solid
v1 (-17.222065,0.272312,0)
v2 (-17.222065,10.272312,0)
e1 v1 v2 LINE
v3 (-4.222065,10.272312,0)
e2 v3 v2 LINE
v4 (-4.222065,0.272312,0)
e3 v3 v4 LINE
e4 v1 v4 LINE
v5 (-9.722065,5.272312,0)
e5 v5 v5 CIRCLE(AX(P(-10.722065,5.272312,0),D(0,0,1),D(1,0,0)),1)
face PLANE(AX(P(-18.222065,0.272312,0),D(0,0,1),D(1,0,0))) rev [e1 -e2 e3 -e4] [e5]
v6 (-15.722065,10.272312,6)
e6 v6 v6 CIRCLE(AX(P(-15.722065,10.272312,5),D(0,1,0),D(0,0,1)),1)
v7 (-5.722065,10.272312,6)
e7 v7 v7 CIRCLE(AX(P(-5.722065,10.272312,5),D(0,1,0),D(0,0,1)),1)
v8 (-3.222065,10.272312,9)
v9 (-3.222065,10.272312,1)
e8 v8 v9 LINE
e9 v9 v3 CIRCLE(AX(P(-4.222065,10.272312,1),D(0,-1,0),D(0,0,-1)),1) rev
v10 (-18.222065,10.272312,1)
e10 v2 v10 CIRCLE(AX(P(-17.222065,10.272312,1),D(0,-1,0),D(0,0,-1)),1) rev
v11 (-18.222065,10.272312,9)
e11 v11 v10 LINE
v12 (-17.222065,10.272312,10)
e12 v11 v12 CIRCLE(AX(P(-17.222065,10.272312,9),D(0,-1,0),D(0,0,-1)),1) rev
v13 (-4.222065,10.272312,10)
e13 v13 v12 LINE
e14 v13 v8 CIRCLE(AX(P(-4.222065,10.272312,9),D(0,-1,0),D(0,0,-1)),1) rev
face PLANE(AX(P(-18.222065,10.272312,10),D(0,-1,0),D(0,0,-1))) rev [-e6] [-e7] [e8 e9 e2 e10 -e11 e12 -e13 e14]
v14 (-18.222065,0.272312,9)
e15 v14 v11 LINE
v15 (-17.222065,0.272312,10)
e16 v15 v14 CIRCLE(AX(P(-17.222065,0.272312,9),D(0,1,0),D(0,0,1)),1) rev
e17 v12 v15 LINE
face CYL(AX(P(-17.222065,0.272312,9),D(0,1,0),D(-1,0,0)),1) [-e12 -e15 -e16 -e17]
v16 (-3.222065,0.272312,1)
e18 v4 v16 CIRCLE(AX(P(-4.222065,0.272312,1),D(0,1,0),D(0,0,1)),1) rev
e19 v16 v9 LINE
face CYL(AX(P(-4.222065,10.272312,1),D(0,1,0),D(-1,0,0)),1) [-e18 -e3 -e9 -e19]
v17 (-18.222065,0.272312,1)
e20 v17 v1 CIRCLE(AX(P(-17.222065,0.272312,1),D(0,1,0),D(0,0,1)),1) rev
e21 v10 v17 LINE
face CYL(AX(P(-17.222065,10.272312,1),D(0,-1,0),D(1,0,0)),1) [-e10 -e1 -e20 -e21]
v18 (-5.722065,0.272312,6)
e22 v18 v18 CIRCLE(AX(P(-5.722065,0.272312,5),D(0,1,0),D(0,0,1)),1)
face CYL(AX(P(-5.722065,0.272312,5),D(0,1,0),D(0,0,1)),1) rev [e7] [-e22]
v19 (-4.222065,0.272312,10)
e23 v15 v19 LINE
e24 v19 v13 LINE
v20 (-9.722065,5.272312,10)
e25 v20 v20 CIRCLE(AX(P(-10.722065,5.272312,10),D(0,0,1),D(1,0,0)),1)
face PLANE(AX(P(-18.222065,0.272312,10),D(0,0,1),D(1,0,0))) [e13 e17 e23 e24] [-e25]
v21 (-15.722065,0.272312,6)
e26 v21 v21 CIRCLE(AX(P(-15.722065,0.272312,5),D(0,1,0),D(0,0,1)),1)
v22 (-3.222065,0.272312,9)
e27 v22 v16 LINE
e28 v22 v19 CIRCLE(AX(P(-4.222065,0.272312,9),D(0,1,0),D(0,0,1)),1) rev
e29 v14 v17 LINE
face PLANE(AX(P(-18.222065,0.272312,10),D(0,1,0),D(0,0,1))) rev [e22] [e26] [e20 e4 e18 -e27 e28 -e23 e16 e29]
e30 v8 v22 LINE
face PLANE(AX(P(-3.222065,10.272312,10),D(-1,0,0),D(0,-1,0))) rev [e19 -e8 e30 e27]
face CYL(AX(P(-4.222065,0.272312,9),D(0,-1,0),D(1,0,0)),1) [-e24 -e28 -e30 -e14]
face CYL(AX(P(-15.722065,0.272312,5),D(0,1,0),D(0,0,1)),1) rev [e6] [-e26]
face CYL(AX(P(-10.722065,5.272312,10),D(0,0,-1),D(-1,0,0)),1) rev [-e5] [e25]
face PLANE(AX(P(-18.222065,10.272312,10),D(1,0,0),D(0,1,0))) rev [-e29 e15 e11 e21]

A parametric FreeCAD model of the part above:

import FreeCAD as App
import Part
import Sketcher
from FreeCAD import Vector


def edges_at(feature, points):
    """Names of the edges that pass closest to the given points."""
    edges = feature.Shape.Edges
    near = lambda p: min(range(len(edges)), key=lambda i: edges[i].distToShape(Part.Vertex(*p))[0])
    return sorted({f"Edge{near(p) + 1}" for p in points})


def add_polygon(sketch, points):
    """Adds a closed chain of lines whose ends are joined by coincident constraints."""
    first, n = sketch.GeometryCount, len(points)
    for a, b in zip(points, points[1:] + points[:1]):
        sketch.addGeometry(Part.LineSegment(App.Vector(*a, 0), App.Vector(*b, 0)), False)
    for i in range(n):
        sketch.addConstraint(Sketcher.Constraint("Coincident", first + i, 2, first + (i + 1) % n, 1))

doc = App.newDocument("Part")
body = doc.addObject("PartDesign::Body", "Body")

# Sketch on XY plane
sketch1 = body.newObject("Sketcher::SketchObject", "Sketch")
sketch1.AttachmentSupport = (doc.getObject("XY_Plane"), [""])
sketch1.MapMode = "FlatFace"
add_polygon(sketch1, [(-18.222065, 10.272312), (-18.222065, 0.272312), (-3.222065, 0.272312), (-3.222065, 10.272312)])  # lines 0-3
sketch1.addGeometry(Part.Circle(Vector(-10.722065, 5.272312, 0), Vector(0, 0, 1), 1), False)  # 4
sketch1.addConstraint([
    Sketcher.Constraint("Vertical", 0),
    Sketcher.Constraint("Horizontal", 1),
    Sketcher.Constraint("Vertical", 2),
    Sketcher.Constraint("Horizontal", 3),
    Sketcher.Constraint("Diameter", 4, 2.0),
    Sketcher.Constraint("DistanceX", 1, 1, 1, 2, 15.0),
    Sketcher.Constraint("DistanceY", 0, 2, 0, 1, 10.0),
    Sketcher.Constraint("DistanceY", 0, 2, 4, 3, 5.0),
    Sketcher.Constraint("DistanceX", 0, 2, 4, 3, 7.5),
    Sketcher.Constraint("DistanceX", 4, 3, -1, 1, 10.722065),
    Sketcher.Constraint("DistanceY", -1, 1, 4, 3, 5.272312),
])
pad1 = body.newObject("PartDesign::Pad", "Pad")
pad1.Profile = sketch1
pad1.Length = 10

# Sketch on XZ plane
sketch2 = body.newObject("Sketcher::SketchObject", "Sketch001")
sketch2.AttachmentSupport = (doc.getObject("XZ_Plane"), [""])
sketch2.MapMode = "FlatFace"
sketch2.AttachmentOffset = App.Placement(Vector(0, 0, -10.272312), App.Rotation())
sketch2.addGeometry([
    Part.Circle(Vector(-15.722065, 5, 0), Vector(0, 0, 1), 1),
    Part.Circle(Vector(-5.722065, 5, 0), Vector(0, 0, 1), 1),
], False)
sketch2.addConstraint([
    Sketcher.Constraint("Equal", 0, 1),
    Sketcher.Constraint("Horizontal", 0, 3, 1, 3),
    Sketcher.Constraint("Diameter", 0, 2.0),
    Sketcher.Constraint("DistanceY", -1, 1, 0, 3, 5.0),
    Sketcher.Constraint("DistanceX", 0, 3, 1, 3, 10.0),
    Sketcher.Constraint("DistanceX", 0, 3, -1, 1, 15.722065),
])
pocket1 = body.newObject("PartDesign::Pocket", "Pocket")
pocket1.Profile = sketch2
pocket1.Length = 10
pocket1.Reversed = True
doc.recompute()

fillet = body.newObject("PartDesign::Fillet", "Fillet")
fillet.Base = (pocket1, edges_at(pocket1, [
    (-3.222, 5.272, 10),
    (-18.222, 5.272, 10),
    (-3.222, 5.272, 0),
    (-18.222, 5.272, 0),
]))
fillet.Radius = 1

doc.recompute()
